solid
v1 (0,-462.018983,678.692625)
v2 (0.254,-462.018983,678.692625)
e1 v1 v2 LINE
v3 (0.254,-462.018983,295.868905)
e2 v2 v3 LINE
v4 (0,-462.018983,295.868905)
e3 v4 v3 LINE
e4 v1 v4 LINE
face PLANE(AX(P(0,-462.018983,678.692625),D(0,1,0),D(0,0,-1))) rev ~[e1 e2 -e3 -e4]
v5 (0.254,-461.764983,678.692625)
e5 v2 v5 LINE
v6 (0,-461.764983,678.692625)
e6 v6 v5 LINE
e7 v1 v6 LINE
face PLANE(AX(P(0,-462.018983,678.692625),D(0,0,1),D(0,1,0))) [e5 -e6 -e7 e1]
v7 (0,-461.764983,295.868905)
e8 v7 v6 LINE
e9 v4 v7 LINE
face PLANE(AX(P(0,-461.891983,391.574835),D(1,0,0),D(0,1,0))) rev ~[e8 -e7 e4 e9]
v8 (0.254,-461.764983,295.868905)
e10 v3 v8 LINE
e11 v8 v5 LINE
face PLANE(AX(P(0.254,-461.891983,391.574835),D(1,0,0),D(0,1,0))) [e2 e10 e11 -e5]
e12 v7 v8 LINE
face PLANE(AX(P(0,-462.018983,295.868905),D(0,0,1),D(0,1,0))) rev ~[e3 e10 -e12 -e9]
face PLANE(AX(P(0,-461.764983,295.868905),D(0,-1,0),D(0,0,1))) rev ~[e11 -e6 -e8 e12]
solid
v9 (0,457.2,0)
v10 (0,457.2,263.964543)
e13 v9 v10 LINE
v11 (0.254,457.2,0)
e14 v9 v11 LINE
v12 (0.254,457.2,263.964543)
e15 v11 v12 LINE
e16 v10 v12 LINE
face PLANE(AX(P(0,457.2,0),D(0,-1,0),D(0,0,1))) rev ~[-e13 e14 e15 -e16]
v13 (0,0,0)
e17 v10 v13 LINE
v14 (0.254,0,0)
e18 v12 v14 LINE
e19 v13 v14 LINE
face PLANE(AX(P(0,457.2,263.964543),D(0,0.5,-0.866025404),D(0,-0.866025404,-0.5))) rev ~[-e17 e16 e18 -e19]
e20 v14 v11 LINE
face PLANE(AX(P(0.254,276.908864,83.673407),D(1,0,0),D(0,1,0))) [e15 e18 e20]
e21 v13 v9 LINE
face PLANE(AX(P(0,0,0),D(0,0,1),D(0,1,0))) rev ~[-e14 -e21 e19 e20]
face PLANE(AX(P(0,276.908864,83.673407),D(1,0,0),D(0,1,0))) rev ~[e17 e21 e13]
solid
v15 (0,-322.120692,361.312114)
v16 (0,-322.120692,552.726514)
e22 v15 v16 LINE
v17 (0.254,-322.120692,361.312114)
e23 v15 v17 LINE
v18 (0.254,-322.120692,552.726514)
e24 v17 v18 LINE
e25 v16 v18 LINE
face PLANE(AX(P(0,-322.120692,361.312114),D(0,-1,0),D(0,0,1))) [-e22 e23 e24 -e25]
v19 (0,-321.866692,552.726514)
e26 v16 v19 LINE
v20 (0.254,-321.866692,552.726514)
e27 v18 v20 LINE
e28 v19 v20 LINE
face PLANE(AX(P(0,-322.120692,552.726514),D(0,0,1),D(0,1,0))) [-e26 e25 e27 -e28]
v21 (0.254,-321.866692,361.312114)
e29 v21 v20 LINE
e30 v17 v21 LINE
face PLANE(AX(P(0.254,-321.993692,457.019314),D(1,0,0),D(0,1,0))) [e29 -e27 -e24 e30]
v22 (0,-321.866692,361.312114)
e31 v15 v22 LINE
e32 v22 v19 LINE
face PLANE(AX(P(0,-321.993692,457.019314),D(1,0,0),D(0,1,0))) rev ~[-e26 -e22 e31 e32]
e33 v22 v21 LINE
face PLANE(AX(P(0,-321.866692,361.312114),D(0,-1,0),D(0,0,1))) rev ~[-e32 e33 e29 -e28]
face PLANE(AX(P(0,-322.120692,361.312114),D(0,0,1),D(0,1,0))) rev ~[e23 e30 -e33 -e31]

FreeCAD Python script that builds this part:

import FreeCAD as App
import Part
import Sketcher
from FreeCAD import Vector
Q = App.Units.Quantity


def add_polygon(sketch, points):
    """Adds a closed chain of lines whose ends are joined by coincident constraints."""
    first, n = sketch.GeometryCount, len(points)
    for a, b in zip(points, points[1:] + points[:1]):
        sketch.addGeometry(Part.LineSegment(App.Vector(*a, 0), App.Vector(*b, 0)), False)
    for i in range(n):
        sketch.addConstraint(Sketcher.Constraint("Coincident", first + i, 2, first + (i + 1) % n, 1))

doc = App.newDocument("Part")
body = doc.addObject("PartDesign::Body", "Body")

sketch1 = body.newObject("Sketcher::SketchObject", "Sketch")
sketch1.AttachmentSupport = (doc.getObject("YZ_Plane"), [""])
sketch1.MapMode = "FlatFace"
add_polygon(sketch1, [(457, 264), (0, 0), (457, 0)])
sketch1.addConstraint(Sketcher.Constraint("Horizontal", 1))
sketch1.addConstraint(Sketcher.Constraint("Vertical", 2))
sketch1.addConstraint(Sketcher.Constraint("Coincident", 0, 2, -1, 1))
sketch1.addConstraint(Sketcher.Constraint("DistanceX", 1, 1, 1, 2, Q("18 in")))
sketch1.addConstraint(Sketcher.Constraint("Angle", 0, Q("-150 deg")))
pad1 = body.newObject("PartDesign::Pad", "Pad")
pad1.Profile = sketch1
pad1.Length = Q("0.01 in")
body2 = doc.addObject("PartDesign::Body", "Body001")

sketch2 = body2.newObject("Sketcher::SketchObject", "Sketch001")
sketch2.AttachmentSupport = (doc.getObject("YZ_Plane001"), [""])
sketch2.MapMode = "FlatFace"
add_polygon(sketch2, [(-462.02, 295.87), (-461.76, 295.87), (-461.76, 678.69), (-462.02, 678.69)])
sketch2.addConstraint(Sketcher.Constraint("Horizontal", 0))
sketch2.addConstraint(Sketcher.Constraint("Vertical", 1))
sketch2.addConstraint(Sketcher.Constraint("Horizontal", 2))
sketch2.addConstraint(Sketcher.Constraint("Vertical", 3))
sketch2.addConstraint(Sketcher.Constraint("DistanceX", 0, 1, 0, 2, Q("0.01 in")))
sketch2.addConstraint(Sketcher.Constraint("DistanceY", 1, 1, 1, 2, Q("15.0718 in")))
sketch2.addConstraint(Sketcher.Constraint("DistanceX", 0, 2, -1, 1, Q("461.764983 mm")))
sketch2.addConstraint(Sketcher.Constraint("DistanceY", -1, 1, 0, 2, Q("295.868905 mm")))
pad2 = body2.newObject("PartDesign::Pad", "Pad001")
pad2.Profile = sketch2
pad2.Length = Q("0.01 in")
body3 = doc.addObject("PartDesign::Body", "Body002")

sketch3 = body3.newObject("Sketcher::SketchObject", "Sketch002")
sketch3.AttachmentSupport = (doc.getObject("YZ_Plane002"), [""])
sketch3.MapMode = "FlatFace"
add_polygon(sketch3, [(-322.12, 552.73), (-322.12, 361.31), (-321.87, 361.31), (-321.87, 552.73)])
sketch3.addConstraint(Sketcher.Constraint("Vertical", 0))
sketch3.addConstraint(Sketcher.Constraint("Horizontal", 1))
sketch3.addConstraint(Sketcher.Constraint("Vertical", 2))
sketch3.addConstraint(Sketcher.Constraint("Horizontal", 3))
sketch3.addConstraint(Sketcher.Constraint("DistanceX", 1, 1, 1, 2, Q("0.01 in")))
sketch3.addConstraint(Sketcher.Constraint("DistanceY", 0, 2, 0, 1, Q("7.536 in")))
sketch3.addConstraint(Sketcher.Constraint("DistanceX", 0, 2, -1, 1, Q("322.120692 mm")))
sketch3.addConstraint(Sketcher.Constraint("DistanceY", -1, 1, 0, 2, Q("361.312114 mm")))
pad3 = body3.newObject("PartDesign::Pad", "Pad002")
pad3.Profile = sketch3
pad3.Length = Q("0.01 in")

doc.recompute()
